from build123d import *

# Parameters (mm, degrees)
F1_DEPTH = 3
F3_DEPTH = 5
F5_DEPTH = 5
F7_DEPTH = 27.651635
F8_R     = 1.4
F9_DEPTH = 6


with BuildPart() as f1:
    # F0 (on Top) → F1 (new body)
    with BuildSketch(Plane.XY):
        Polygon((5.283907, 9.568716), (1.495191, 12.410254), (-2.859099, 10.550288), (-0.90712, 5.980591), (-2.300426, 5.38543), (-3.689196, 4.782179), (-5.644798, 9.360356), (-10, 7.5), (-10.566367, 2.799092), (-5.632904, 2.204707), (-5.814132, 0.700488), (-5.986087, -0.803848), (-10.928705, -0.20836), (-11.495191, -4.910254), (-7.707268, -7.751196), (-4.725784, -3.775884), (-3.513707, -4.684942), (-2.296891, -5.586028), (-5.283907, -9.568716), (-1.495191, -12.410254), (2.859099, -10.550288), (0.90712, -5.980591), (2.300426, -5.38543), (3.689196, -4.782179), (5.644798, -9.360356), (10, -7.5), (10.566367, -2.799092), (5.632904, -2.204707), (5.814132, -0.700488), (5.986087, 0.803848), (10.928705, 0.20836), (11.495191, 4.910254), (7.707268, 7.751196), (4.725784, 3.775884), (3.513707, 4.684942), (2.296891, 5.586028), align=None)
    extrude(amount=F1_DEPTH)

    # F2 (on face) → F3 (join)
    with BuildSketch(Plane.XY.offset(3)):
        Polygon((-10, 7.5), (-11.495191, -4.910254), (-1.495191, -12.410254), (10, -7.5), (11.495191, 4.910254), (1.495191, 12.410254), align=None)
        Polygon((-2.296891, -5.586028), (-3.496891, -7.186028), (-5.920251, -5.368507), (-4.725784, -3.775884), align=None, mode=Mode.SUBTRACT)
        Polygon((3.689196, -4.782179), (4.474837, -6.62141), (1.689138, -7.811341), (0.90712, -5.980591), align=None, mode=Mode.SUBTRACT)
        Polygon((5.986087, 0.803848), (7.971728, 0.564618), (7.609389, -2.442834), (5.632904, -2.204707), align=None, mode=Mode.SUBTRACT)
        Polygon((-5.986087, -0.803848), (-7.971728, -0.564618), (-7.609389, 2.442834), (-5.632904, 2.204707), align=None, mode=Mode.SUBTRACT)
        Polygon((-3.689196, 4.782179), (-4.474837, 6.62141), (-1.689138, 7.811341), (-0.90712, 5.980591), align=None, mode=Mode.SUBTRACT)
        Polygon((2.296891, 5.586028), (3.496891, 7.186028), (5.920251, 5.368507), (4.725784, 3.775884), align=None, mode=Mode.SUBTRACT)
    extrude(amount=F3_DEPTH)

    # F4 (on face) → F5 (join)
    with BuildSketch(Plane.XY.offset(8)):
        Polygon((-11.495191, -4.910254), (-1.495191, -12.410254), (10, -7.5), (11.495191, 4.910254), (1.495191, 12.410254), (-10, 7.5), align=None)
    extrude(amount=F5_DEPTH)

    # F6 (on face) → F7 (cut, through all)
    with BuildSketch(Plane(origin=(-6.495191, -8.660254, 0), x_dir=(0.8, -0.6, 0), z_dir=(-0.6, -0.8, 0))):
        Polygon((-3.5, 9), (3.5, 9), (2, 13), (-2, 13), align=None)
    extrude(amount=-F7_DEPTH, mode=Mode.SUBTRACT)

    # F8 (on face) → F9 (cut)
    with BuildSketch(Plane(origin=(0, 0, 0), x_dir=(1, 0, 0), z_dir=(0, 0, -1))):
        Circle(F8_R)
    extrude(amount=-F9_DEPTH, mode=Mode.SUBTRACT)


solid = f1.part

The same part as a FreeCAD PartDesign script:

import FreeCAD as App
import Part
import Sketcher
from FreeCAD import Vector
Q = App.Units.Quantity

doc = App.newDocument("Part")
body = doc.addObject("PartDesign::Body", "Body")

# Sketch on XY plane
sketch1 = body.newObject("Sketcher::SketchObject", "Sketch")
sketch1.AttachmentSupport = (doc.getObject("XY_Plane"), [""])
sketch1.MapMode = "FlatFace"
sketch1.addGeometry([
    Part.LineSegment(Vector(5.3, 9.6, 0), Vector(1.5, 12.4, 0)),  # 0
    Part.LineSegment(Vector(1.5, 12.4, 0), Vector(-2.9, 10.6, 0)),  # 1
    Part.LineSegment(Vector(-2.9, 10.6, 0), Vector(-0.9, 6, 0)),  # 2
    Part.LineSegment(Vector(-0.9, 6, 0), Vector(-2.3, 5.4, 0)),  # 3
    Part.LineSegment(Vector(-2.3, 5.4, 0), Vector(-3.7, 4.8, 0)),  # 4
    Part.LineSegment(Vector(-3.7, 4.8, 0), Vector(-5.6, 9.4, 0)),  # 5
    Part.LineSegment(Vector(-5.6, 9.4, 0), Vector(-10, 7.5, 0)),  # 6
    Part.LineSegment(Vector(-10, 7.5, 0), Vector(-10.6, 2.8, 0)),  # 7
    Part.LineSegment(Vector(-10.6, 2.8, 0), Vector(-5.6, 2.2, 0)),  # 8
    Part.LineSegment(Vector(-5.6, 2.2, 0), Vector(-5.8, 0.7, 0)),  # 9
    Part.LineSegment(Vector(-5.8, 0.7, 0), Vector(-6, -0.8, 0)),  # 10
    Part.LineSegment(Vector(-6, -0.8, 0), Vector(-10.9, -0.2, 0)),  # 11
    Part.LineSegment(Vector(-10.9, -0.2, 0), Vector(-11.5, -4.9, 0)),  # 12
    Part.LineSegment(Vector(-11.5, -4.9, 0), Vector(-7.7, -7.8, 0)),  # 13
    Part.LineSegment(Vector(-7.7, -7.8, 0), Vector(-4.7, -3.8, 0)),  # 14
    Part.LineSegment(Vector(-4.7, -3.8, 0), Vector(-3.5, -4.7, 0)),  # 15
    Part.LineSegment(Vector(-3.5, -4.7, 0), Vector(-2.3, -5.6, 0)),  # 16
    Part.LineSegment(Vector(-2.3, -5.6, 0), Vector(-5.3, -9.6, 0)),  # 17
    Part.LineSegment(Vector(-5.3, -9.6, 0), Vector(-1.5, -12.4, 0)),  # 18
    Part.LineSegment(Vector(-1.5, -12.4, 0), Vector(2.9, -10.6, 0)),  # 19
    Part.LineSegment(Vector(2.9, -10.6, 0), Vector(0.9, -6, 0)),  # 20
    Part.LineSegment(Vector(0.9, -6, 0), Vector(2.3, -5.4, 0)),  # 21
    Part.LineSegment(Vector(2.3, -5.4, 0), Vector(3.7, -4.8, 0)),  # 22
    Part.LineSegment(Vector(3.7, -4.8, 0), Vector(5.6, -9.4, 0)),  # 23
    Part.LineSegment(Vector(5.6, -9.4, 0), Vector(10, -7.5, 0)),  # 24
    Part.LineSegment(Vector(10, -7.5, 0), Vector(10.6, -2.8, 0)),  # 25
    Part.LineSegment(Vector(10.6, -2.8, 0), Vector(5.6, -2.2, 0)),  # 26
    Part.LineSegment(Vector(5.6, -2.2, 0), Vector(5.8, -0.7, 0)),  # 27
    Part.LineSegment(Vector(5.8, -0.7, 0), Vector(6, 0.8, 0)),  # 28
    Part.LineSegment(Vector(6, 0.8, 0), Vector(10.9, 0.2, 0)),  # 29
    Part.LineSegment(Vector(10.9, 0.2, 0), Vector(11.5, 4.9, 0)),  # 30
    Part.LineSegment(Vector(11.5, 4.9, 0), Vector(7.7, 7.8, 0)),  # 31
    Part.LineSegment(Vector(7.7, 7.8, 0), Vector(4.7, 3.8, 0)),  # 32
    Part.LineSegment(Vector(4.7, 3.8, 0), Vector(3.5, 4.7, 0)),  # 33
    Part.LineSegment(Vector(3.5, 4.7, 0), Vector(2.3, 5.6, 0)),  # 34
    Part.LineSegment(Vector(2.3, 5.6, 0), Vector(5.3, 9.6, 0)),  # 35
], False)
sketch1.addConstraint([
    Sketcher.Constraint("Coincident", 0, 2, 1, 1),
    Sketcher.Constraint("Coincident", 1, 2, 2, 1),
    Sketcher.Constraint("Coincident", 2, 2, 3, 1),
    Sketcher.Constraint("Coincident", 3, 2, 4, 1),
    Sketcher.Constraint("Coincident", 4, 2, 5, 1),
    Sketcher.Constraint("Coincident", 5, 2, 6, 1),
    Sketcher.Constraint("Coincident", 6, 2, 7, 1),
    Sketcher.Constraint("Coincident", 7, 2, 8, 1),
    Sketcher.Constraint("Coincident", 8, 2, 9, 1),
    Sketcher.Constraint("Coincident", 9, 2, 10, 1),
    Sketcher.Constraint("Coincident", 10, 2, 11, 1),
    Sketcher.Constraint("Coincident", 11, 2, 12, 1),
    Sketcher.Constraint("Coincident", 12, 2, 13, 1),
    Sketcher.Constraint("Coincident", 13, 2, 14, 1),
    Sketcher.Constraint("Coincident", 14, 2, 15, 1),
    Sketcher.Constraint("Coincident", 15, 2, 16, 1),
    Sketcher.Constraint("Coincident", 16, 2, 17, 1),
    Sketcher.Constraint("Coincident", 17, 2, 18, 1),
    Sketcher.Constraint("Coincident", 18, 2, 19, 1),
    Sketcher.Constraint("Coincident", 19, 2, 20, 1),
    Sketcher.Constraint("Coincident", 20, 2, 21, 1),
    Sketcher.Constraint("Coincident", 21, 2, 22, 1),
    Sketcher.Constraint("Coincident", 22, 2, 23, 1),
    Sketcher.Constraint("Coincident", 23, 2, 24, 1),
    Sketcher.Constraint("Coincident", 24, 2, 25, 1),
    Sketcher.Constraint("Coincident", 25, 2, 26, 1),
    Sketcher.Constraint("Coincident", 26, 2, 27, 1),
    Sketcher.Constraint("Coincident", 27, 2, 28, 1),
    Sketcher.Constraint("Coincident", 28, 2, 29, 1),
    Sketcher.Constraint("Coincident", 29, 2, 30, 1),
    Sketcher.Constraint("Coincident", 30, 2, 31, 1),
    Sketcher.Constraint("Coincident", 31, 2, 32, 1),
    Sketcher.Constraint("Coincident", 32, 2, 33, 1),
    Sketcher.Constraint("Coincident", 33, 2, 34, 1),
    Sketcher.Constraint("Coincident", 34, 2, 35, 1),
    Sketcher.Constraint("Coincident", 35, 2, 0, 1),
    Sketcher.Constraint("Symmetric", 0, 2, 18, 2, -1, 1),
    Sketcher.Constraint("Symmetric", 1, 2, 19, 2, -1, 1),
    Sketcher.Constraint("Symmetric", 2, 2, 20, 2, -1, 1),
    Sketcher.Constraint("Symmetric", 3, 2, 21, 2, -1, 1),
    Sketcher.Constraint("Symmetric", 4, 2, 22, 2, -1, 1),
    Sketcher.Constraint("Symmetric", 5, 2, 23, 2, -1, 1),
    Sketcher.Constraint("Symmetric", 6, 2, 24, 2, -1, 1),
    Sketcher.Constraint("Symmetric", 7, 2, 25, 2, -1, 1),
    Sketcher.Constraint("Symmetric", 8, 2, 26, 2, -1, 1),
    Sketcher.Constraint("Symmetric", 9, 2, 27, 2, -1, 1),
    Sketcher.Constraint("Symmetric", 10, 2, 28, 2, -1, 1),
    Sketcher.Constraint("Symmetric", 11, 2, 29, 2, -1, 1),
    Sketcher.Constraint("Symmetric", 12, 2, 30, 2, -1, 1),
    Sketcher.Constraint("Symmetric", 13, 2, 31, 2, -1, 1),
    Sketcher.Constraint("Symmetric", 14, 2, 32, 2, -1, 1),
    Sketcher.Constraint("Symmetric", 15, 2, 33, 2, -1, 1),
    Sketcher.Constraint("Symmetric", 16, 2, 34, 2, -1, 1),
    Sketcher.Constraint("Symmetric", 17, 2, 35, 2, -1, 1),
    Sketcher.Constraint("Perpendicular", 1, 2),
    Sketcher.Constraint("Perpendicular", 2, 3),
    Sketcher.Constraint("Perpendicular", 3, 5),
    Sketcher.Constraint("Perpendicular", 5, 6),
    Sketcher.Constraint("Perpendicular", 7, 8),
    Sketcher.Constraint("Perpendicular", 8, 9),
    Sketcher.Constraint("Perpendicular", 9, 11),
    Sketcher.Constraint("Perpendicular", 11, 12),
    Sketcher.Constraint("Parallel", 0, 13),
    Sketcher.Constraint("Perpendicular", 13, 14),
    Sketcher.Constraint("Perpendicular", 14, 15),
    Sketcher.Constraint("Perpendicular", 15, 17),
    Sketcher.Constraint("Equal", 0, 6),
    Sketcher.Constraint("Equal", 1, 7),
    Sketcher.Constraint("Equal", 2, 8),
    Sketcher.Constraint("Equal", 3, 9),
    Sketcher.Constraint("Equal", 4, 10),
    Sketcher.Constraint("Equal", 5, 11),
    Sketcher.Constraint("Equal", 6, 12),
    Sketcher.Constraint("Equal", 7, 13),
    Sketcher.Constraint("Equal", 8, 14),
    Sketcher.Constraint("Equal", 9, 15),
    Sketcher.Constraint("Equal", 10, 16),
    Sketcher.Constraint("Equal", 11, 17),
    Sketcher.Constraint("DistanceX", 6, 2, -1, 1, Q("10 mm")),
    Sketcher.Constraint("DistanceY", -1, 1, 6, 2, Q("7.5 mm")),
    Sketcher.Constraint("DistanceX", 1, 2, -1, 1, Q("2.859099 mm")),
    Sketcher.Constraint("DistanceX", 5, 2, 1, 2, Q("2.785699 mm")),
    Sketcher.Constraint("DistanceX", 5, 2, 4, 2, Q("1.955602 mm")),
    Sketcher.Constraint("DistanceY", 5, 2, 0, 2, Q("3.049898 mm")),
    Sketcher.Constraint("DistanceY", 7, 2, 2, 2, Q("3.181499 mm")),
    Sketcher.Constraint("DistanceX", 11, 2, 8, 2, Q("5.295801 mm")),
    Sketcher.Constraint("DistanceX", 17, 2, 15, 2, Q("1.7702 mm")),
    Sketcher.Constraint("DistanceX", 16, 2, 18, 2, Q("0.8017 mm")),
    Sketcher.Constraint("Distance", 2, Q("4.96914 mm")),
    Sketcher.Constraint("Distance", 4, Q("1.514131 mm")),
])
pad1 = body.newObject("PartDesign::Pad", "Pad")
pad1.Profile = sketch1
pad1.Length = 3

# Sketch on XY plane
sketch2 = body.newObject("Sketcher::SketchObject", "Sketch001")
sketch2.AttachmentSupport = (doc.getObject("XY_Plane"), [""])
sketch2.MapMode = "FlatFace"
sketch2.AttachmentOffset = App.Placement(Vector(0, 0, 3), App.Rotation())
sketch2.addGeometry([
    Part.LineSegment(Vector(-10, 7.5, 0), Vector(-11.5, -4.9, 0)),  # 0
    Part.LineSegment(Vector(-11.5, -4.9, 0), Vector(-1.5, -12.4, 0)),  # 1
    Part.LineSegment(Vector(-1.5, -12.4, 0), Vector(10, -7.5, 0)),  # 2
    Part.LineSegment(Vector(10, -7.5, 0), Vector(11.5, 4.9, 0)),  # 3
    Part.LineSegment(Vector(11.5, 4.9, 0), Vector(1.5, 12.4, 0)),  # 4
    Part.LineSegment(Vector(1.5, 12.4, 0), Vector(-10, 7.5, 0)),  # 5
    Part.LineSegment(Vector(-4.7, -3.8, 0), Vector(-2.3, -5.6, 0)),  # 6
    Part.LineSegment(Vector(-2.3, -5.6, 0), Vector(-3.5, -7.2, 0)),  # 7
    Part.LineSegment(Vector(-3.5, -7.2, 0), Vector(-5.9, -5.4, 0)),  # 8
    Part.LineSegment(Vector(-5.9, -5.4, 0), Vector(-4.7, -3.8, 0)),  # 9
    Part.LineSegment(Vector(0.9, -6, 0), Vector(3.7, -4.8, 0)),  # 10
    Part.LineSegment(Vector(3.7, -4.8, 0), Vector(4.5, -6.6, 0)),  # 11
    Part.LineSegment(Vector(4.5, -6.6, 0), Vector(1.7, -7.8, 0)),  # 12
    Part.LineSegment(Vector(1.7, -7.8, 0), Vector(0.9, -6, 0)),  # 13
    Part.LineSegment(Vector(5.6, -2.2, 0), Vector(6, 0.8, 0)),  # 14
    Part.LineSegment(Vector(6, 0.8, 0), Vector(8, 0.6, 0)),  # 15
    Part.LineSegment(Vector(8, 0.6, 0), Vector(7.6, -2.4, 0)),  # 16
    Part.LineSegment(Vector(7.6, -2.4, 0), Vector(5.6, -2.2, 0)),  # 17
    Part.LineSegment(Vector(-5.6, 2.2, 0), Vector(-6, -0.8, 0)),  # 18
    Part.LineSegment(Vector(-6, -0.8, 0), Vector(-8, -0.6, 0)),  # 19
    Part.LineSegment(Vector(-8, -0.6, 0), Vector(-7.6, 2.4, 0)),  # 20
    Part.LineSegment(Vector(-7.6, 2.4, 0), Vector(-5.6, 2.2, 0)),  # 21
    Part.LineSegment(Vector(-0.9, 6, 0), Vector(-3.7, 4.8, 0)),  # 22
    Part.LineSegment(Vector(-3.7, 4.8, 0), Vector(-4.5, 6.6, 0)),  # 23
    Part.LineSegment(Vector(-4.5, 6.6, 0), Vector(-1.7, 7.8, 0)),  # 24
    Part.LineSegment(Vector(-1.7, 7.8, 0), Vector(-0.9, 6, 0)),  # 25
    Part.LineSegment(Vector(4.7, 3.8, 0), Vector(2.3, 5.6, 0)),  # 26
    Part.LineSegment(Vector(2.3, 5.6, 0), Vector(3.5, 7.2, 0)),  # 27
    Part.LineSegment(Vector(3.5, 7.2, 0), Vector(5.9, 5.4, 0)),  # 28
    Part.LineSegment(Vector(5.9, 5.4, 0), Vector(4.7, 3.8, 0)),  # 29
], False)
sketch2.addConstraint([
    Sketcher.Constraint("Coincident", 0, 2, 1, 1),
    Sketcher.Constraint("Coincident", 1, 2, 2, 1),
    Sketcher.Constraint("Coincident", 2, 2, 3, 1),
    Sketcher.Constraint("Coincident", 3, 2, 4, 1),
    Sketcher.Constraint("Coincident", 4, 2, 5, 1),
    Sketcher.Constraint("Coincident", 5, 2, 0, 1),
    Sketcher.Constraint("Coincident", 6, 2, 7, 1),
    Sketcher.Constraint("Coincident", 7, 2, 8, 1),
    Sketcher.Constraint("Coincident", 8, 2, 9, 1),
    Sketcher.Constraint("Coincident", 9, 2, 6, 1),
    Sketcher.Constraint("Coincident", 10, 2, 11, 1),
    Sketcher.Constraint("Coincident", 11, 2, 12, 1),
    Sketcher.Constraint("Coincident", 12, 2, 13, 1),
    Sketcher.Constraint("Coincident", 13, 2, 10, 1),
    Sketcher.Constraint("Coincident", 14, 2, 15, 1),
    Sketcher.Constraint("Coincident", 15, 2, 16, 1),
    Sketcher.Constraint("Coincident", 16, 2, 17, 1),
    Sketcher.Constraint("Coincident", 17, 2, 14, 1),
    Sketcher.Constraint("Coincident", 18, 2, 19, 1),
    Sketcher.Constraint("Coincident", 19, 2, 20, 1),
    Sketcher.Constraint("Coincident", 20, 2, 21, 1),
    Sketcher.Constraint("Coincident", 21, 2, 18, 1),
    Sketcher.Constraint("Coincident", 22, 2, 23, 1),
    Sketcher.Constraint("Coincident", 23, 2, 24, 1),
    Sketcher.Constraint("Coincident", 24, 2, 25, 1),
    Sketcher.Constraint("Coincident", 25, 2, 22, 1),
    Sketcher.Constraint("Coincident", 26, 2, 27, 1),
    Sketcher.Constraint("Coincident", 27, 2, 28, 1),
    Sketcher.Constraint("Coincident", 28, 2, 29, 1),
    Sketcher.Constraint("Coincident", 29, 2, 26, 1),
    Sketcher.Constraint("Symmetric", 0, 2, 3, 2, -1, 1),
    Sketcher.Constraint("Symmetric", 1, 2, 4, 2, -1, 1),
    Sketcher.Constraint("Symmetric", 2, 2, 5, 2, -1, 1),
    Sketcher.Constraint("Symmetric", 14, 2, 18, 2, -1, 1),
    Sketcher.Constraint("Symmetric", 15, 2, 19, 2, -1, 1),
    Sketcher.Constraint("Symmetric", 16, 2, 20, 2, -1, 1),
    Sketcher.Constraint("Symmetric", 17, 2, 21, 2, -1, 1),
    Sketcher.Constraint("Symmetric", 10, 2, 22, 2, -1, 1),
    Sketcher.Constraint("Symmetric", 11, 2, 23, 2, -1, 1),
    Sketcher.Constraint("Symmetric", 12, 2, 24, 2, -1, 1),
    Sketcher.Constraint("Symmetric", 13, 2, 25, 2, -1, 1),
    Sketcher.Constraint("Symmetric", 6, 2, 26, 2, -1, 1),
    Sketcher.Constraint("Symmetric", 7, 2, 27, 2, -1, 1),
    Sketcher.Constraint("Symmetric", 8, 2, 28, 2, -1, 1),
    Sketcher.Constraint("Symmetric", 9, 2, 29, 2, -1, 1),
    Sketcher.Constraint("Perpendicular", 4, 7),
    Sketcher.Constraint("Perpendicular", 7, 8),
    Sketcher.Constraint("Perpendicular", 8, 9),
    Sketcher.Constraint("Perpendicular", 5, 11),
    Sketcher.Constraint("Perpendicular", 11, 12),
    Sketcher.Constraint("Perpendicular", 12, 13),
    Sketcher.Constraint("Perpendicular", 3, 15),
    Sketcher.Constraint("Perpendicular", 15, 16),
    Sketcher.Constraint("Perpendicular", 16, 17),
    Sketcher.Constraint("Equal", 0, 1),
    Sketcher.Constraint("Equal", 1, 2),
    Sketcher.Constraint("Equal", 6, 10),
    Sketcher.Constraint("Equal", 7, 11),
    Sketcher.Constraint("Equal", 9, 13),
    Sketcher.Constraint("Equal", 10, 14),
    Sketcher.Constraint("Equal", 11, 15),
    Sketcher.Constraint("Equal", 13, 17),
    Sketcher.Constraint("Distance", 7, Q("2 mm")),
    Sketcher.Constraint("DistanceX", -1, 1, 2, 2, Q("10 mm")),
    Sketcher.Constraint("DistanceX", 0, 2, 1, 2, Q("10 mm")),
    Sketcher.Constraint("DistanceY", 2, 2, 5, 2, Q("15 mm")),
    Sketcher.Constraint("Distance", 0, Q("12.5 mm")),
    Sketcher.Constraint("Distance", 8, Q("3.029201 mm")),
    Sketcher.Constraint("DistanceX", 6, 2, 1, 2, Q("0.8017 mm")),
    Sketcher.Constraint("Distance", 9, Q("1.990779 mm")),
    Sketcher.Constraint("DistanceY", 7, 2, -1, 1, Q("7.186028 mm")),
    Sketcher.Constraint("DistanceY", 10, 2, -1, 1, Q("4.782179 mm")),
    Sketcher.Constraint("DistanceX", -1, 1, 13, 2, Q("0.90712 mm")),
    Sketcher.Constraint("DistanceY", -1, 1, 14, 2, Q("0.803848 mm")),
    Sketcher.Constraint("DistanceX", -1, 1, 16, 2, Q("7.609389 mm")),
])
pad2 = body.newObject("PartDesign::Pad", "Pad001")
pad2.Profile = sketch2
pad2.Length = 5

# Sketch on XY plane
sketch3 = body.newObject("Sketcher::SketchObject", "Sketch002")
sketch3.AttachmentSupport = (doc.getObject("XY_Plane"), [""])
sketch3.MapMode = "FlatFace"
sketch3.AttachmentOffset = App.Placement(Vector(0, 0, 8), App.Rotation())
sketch3.addGeometry([
    Part.LineSegment(Vector(-11, -5, 0), Vector(-1, -12, 0)),  # 0
    Part.LineSegment(Vector(-1, -12, 0), Vector(10, -8, 0)),  # 1
    Part.LineSegment(Vector(10, -8, 0), Vector(11, 5, 0)),  # 2
    Part.LineSegment(Vector(11, 5, 0), Vector(1, 12, 0)),  # 3
    Part.LineSegment(Vector(1, 12, 0), Vector(-10, 8, 0)),  # 4
    Part.LineSegment(Vector(-10, 8, 0), Vector(-11, -5, 0)),  # 5
], False)
sketch3.addConstraint([
    Sketcher.Constraint("Coincident", 0, 2, 1, 1),
    Sketcher.Constraint("Coincident", 1, 2, 2, 1),
    Sketcher.Constraint("Coincident", 2, 2, 3, 1),
    Sketcher.Constraint("Coincident", 3, 2, 4, 1),
    Sketcher.Constraint("Coincident", 4, 2, 5, 1),
    Sketcher.Constraint("Coincident", 5, 2, 0, 1),
    Sketcher.Constraint("Symmetric", 0, 2, 3, 2, -1, 1),
    Sketcher.Constraint("Symmetric", 1, 2, 4, 2, -1, 1),
    Sketcher.Constraint("Symmetric", 2, 2, 5, 2, -1, 1),
    Sketcher.Constraint("Equal", 0, 1),
    Sketcher.Constraint("Equal", 1, 2),
    Sketcher.Constraint("DistanceX", -1, 1, 1, 2, Q("10 mm")),
    Sketcher.Constraint("DistanceX", 3, 2, 2, 2, Q("10 mm")),
    Sketcher.Constraint("DistanceY", 1, 2, 4, 2, Q("15 mm")),
    Sketcher.Constraint("Distance", 0, Q("12.5 mm")),
])
pad3 = body.newObject("PartDesign::Pad", "Pad002")
pad3.Profile = sketch3
pad3.Length = 5

# Sketch on an angled plane
sketch4 = body.newObject("Sketcher::SketchObject", "Sketch003")
sketch4.Placement = App.Placement(Vector(-6.495191, -8.660254, 0), App.Rotation(Vector(0.8, -0.6, 0), Vector(0, 0, 1), Vector(-0.6, -0.8, 0), "ZXY"))
sketch4.addGeometry([
    Part.LineSegment(Vector(-3.5, 9, 0), Vector(3.5, 9, 0)),
    Part.LineSegment(Vector(3.5, 9, 0), Vector(2, 13, 0)),
    Part.LineSegment(Vector(2, 13, 0), Vector(-2, 13, 0)),
    Part.LineSegment(Vector(-2, 13, 0), Vector(-3.5, 9, 0)),
], False)
sketch4.addConstraint([
    Sketcher.Constraint("Coincident", 0, 2, 1, 1),
    Sketcher.Constraint("Coincident", 1, 2, 2, 1),
    Sketcher.Constraint("Coincident", 2, 2, 3, 1),
    Sketcher.Constraint("Coincident", 3, 2, 0, 1),
    Sketcher.Constraint("Horizontal", 0),
    Sketcher.Constraint("Horizontal", 2),
    Sketcher.Constraint("Equal", 1, 3),
    Sketcher.Constraint("DistanceX", 0, 1, 0, 2, Q("7 mm")),
    Sketcher.Constraint("DistanceX", 2, 2, 2, 1, Q("4 mm")),
    Sketcher.Constraint("DistanceY", -1, 1, 0, 2, Q("9 mm")),
    Sketcher.Constraint("DistanceX", -1, 1, 1, 2, Q("2 mm")),
    Sketcher.Constraint("DistanceY", -1, 1, 1, 2, Q("13 mm")),
])
pocket1 = body.newObject("PartDesign::Pocket", "Pocket")
pocket1.Profile = sketch4
pocket1.Type = "ThroughAll"

# Sketch on XY plane
sketch5 = body.newObject("Sketcher::SketchObject", "Sketch004")
sketch5.AttachmentSupport = (doc.getObject("XY_Plane"), [""])
sketch5.MapMode = "FlatFace"
sketch5.addGeometry(Part.Circle(Vector(0, 0, 0), Vector(0, 0, 1), 1.4), False)
sketch5.addConstraint([
    Sketcher.Constraint("Coincident", 0, 3, -1, 1),
    Sketcher.Constraint("Diameter", 0, Q("2.8 mm")),
])
pocket2 = body.newObject("PartDesign::Pocket", "Pocket001")
pocket2.Profile = sketch5
pocket2.Length = 6
pocket2.Reversed = True

doc.recompute()
